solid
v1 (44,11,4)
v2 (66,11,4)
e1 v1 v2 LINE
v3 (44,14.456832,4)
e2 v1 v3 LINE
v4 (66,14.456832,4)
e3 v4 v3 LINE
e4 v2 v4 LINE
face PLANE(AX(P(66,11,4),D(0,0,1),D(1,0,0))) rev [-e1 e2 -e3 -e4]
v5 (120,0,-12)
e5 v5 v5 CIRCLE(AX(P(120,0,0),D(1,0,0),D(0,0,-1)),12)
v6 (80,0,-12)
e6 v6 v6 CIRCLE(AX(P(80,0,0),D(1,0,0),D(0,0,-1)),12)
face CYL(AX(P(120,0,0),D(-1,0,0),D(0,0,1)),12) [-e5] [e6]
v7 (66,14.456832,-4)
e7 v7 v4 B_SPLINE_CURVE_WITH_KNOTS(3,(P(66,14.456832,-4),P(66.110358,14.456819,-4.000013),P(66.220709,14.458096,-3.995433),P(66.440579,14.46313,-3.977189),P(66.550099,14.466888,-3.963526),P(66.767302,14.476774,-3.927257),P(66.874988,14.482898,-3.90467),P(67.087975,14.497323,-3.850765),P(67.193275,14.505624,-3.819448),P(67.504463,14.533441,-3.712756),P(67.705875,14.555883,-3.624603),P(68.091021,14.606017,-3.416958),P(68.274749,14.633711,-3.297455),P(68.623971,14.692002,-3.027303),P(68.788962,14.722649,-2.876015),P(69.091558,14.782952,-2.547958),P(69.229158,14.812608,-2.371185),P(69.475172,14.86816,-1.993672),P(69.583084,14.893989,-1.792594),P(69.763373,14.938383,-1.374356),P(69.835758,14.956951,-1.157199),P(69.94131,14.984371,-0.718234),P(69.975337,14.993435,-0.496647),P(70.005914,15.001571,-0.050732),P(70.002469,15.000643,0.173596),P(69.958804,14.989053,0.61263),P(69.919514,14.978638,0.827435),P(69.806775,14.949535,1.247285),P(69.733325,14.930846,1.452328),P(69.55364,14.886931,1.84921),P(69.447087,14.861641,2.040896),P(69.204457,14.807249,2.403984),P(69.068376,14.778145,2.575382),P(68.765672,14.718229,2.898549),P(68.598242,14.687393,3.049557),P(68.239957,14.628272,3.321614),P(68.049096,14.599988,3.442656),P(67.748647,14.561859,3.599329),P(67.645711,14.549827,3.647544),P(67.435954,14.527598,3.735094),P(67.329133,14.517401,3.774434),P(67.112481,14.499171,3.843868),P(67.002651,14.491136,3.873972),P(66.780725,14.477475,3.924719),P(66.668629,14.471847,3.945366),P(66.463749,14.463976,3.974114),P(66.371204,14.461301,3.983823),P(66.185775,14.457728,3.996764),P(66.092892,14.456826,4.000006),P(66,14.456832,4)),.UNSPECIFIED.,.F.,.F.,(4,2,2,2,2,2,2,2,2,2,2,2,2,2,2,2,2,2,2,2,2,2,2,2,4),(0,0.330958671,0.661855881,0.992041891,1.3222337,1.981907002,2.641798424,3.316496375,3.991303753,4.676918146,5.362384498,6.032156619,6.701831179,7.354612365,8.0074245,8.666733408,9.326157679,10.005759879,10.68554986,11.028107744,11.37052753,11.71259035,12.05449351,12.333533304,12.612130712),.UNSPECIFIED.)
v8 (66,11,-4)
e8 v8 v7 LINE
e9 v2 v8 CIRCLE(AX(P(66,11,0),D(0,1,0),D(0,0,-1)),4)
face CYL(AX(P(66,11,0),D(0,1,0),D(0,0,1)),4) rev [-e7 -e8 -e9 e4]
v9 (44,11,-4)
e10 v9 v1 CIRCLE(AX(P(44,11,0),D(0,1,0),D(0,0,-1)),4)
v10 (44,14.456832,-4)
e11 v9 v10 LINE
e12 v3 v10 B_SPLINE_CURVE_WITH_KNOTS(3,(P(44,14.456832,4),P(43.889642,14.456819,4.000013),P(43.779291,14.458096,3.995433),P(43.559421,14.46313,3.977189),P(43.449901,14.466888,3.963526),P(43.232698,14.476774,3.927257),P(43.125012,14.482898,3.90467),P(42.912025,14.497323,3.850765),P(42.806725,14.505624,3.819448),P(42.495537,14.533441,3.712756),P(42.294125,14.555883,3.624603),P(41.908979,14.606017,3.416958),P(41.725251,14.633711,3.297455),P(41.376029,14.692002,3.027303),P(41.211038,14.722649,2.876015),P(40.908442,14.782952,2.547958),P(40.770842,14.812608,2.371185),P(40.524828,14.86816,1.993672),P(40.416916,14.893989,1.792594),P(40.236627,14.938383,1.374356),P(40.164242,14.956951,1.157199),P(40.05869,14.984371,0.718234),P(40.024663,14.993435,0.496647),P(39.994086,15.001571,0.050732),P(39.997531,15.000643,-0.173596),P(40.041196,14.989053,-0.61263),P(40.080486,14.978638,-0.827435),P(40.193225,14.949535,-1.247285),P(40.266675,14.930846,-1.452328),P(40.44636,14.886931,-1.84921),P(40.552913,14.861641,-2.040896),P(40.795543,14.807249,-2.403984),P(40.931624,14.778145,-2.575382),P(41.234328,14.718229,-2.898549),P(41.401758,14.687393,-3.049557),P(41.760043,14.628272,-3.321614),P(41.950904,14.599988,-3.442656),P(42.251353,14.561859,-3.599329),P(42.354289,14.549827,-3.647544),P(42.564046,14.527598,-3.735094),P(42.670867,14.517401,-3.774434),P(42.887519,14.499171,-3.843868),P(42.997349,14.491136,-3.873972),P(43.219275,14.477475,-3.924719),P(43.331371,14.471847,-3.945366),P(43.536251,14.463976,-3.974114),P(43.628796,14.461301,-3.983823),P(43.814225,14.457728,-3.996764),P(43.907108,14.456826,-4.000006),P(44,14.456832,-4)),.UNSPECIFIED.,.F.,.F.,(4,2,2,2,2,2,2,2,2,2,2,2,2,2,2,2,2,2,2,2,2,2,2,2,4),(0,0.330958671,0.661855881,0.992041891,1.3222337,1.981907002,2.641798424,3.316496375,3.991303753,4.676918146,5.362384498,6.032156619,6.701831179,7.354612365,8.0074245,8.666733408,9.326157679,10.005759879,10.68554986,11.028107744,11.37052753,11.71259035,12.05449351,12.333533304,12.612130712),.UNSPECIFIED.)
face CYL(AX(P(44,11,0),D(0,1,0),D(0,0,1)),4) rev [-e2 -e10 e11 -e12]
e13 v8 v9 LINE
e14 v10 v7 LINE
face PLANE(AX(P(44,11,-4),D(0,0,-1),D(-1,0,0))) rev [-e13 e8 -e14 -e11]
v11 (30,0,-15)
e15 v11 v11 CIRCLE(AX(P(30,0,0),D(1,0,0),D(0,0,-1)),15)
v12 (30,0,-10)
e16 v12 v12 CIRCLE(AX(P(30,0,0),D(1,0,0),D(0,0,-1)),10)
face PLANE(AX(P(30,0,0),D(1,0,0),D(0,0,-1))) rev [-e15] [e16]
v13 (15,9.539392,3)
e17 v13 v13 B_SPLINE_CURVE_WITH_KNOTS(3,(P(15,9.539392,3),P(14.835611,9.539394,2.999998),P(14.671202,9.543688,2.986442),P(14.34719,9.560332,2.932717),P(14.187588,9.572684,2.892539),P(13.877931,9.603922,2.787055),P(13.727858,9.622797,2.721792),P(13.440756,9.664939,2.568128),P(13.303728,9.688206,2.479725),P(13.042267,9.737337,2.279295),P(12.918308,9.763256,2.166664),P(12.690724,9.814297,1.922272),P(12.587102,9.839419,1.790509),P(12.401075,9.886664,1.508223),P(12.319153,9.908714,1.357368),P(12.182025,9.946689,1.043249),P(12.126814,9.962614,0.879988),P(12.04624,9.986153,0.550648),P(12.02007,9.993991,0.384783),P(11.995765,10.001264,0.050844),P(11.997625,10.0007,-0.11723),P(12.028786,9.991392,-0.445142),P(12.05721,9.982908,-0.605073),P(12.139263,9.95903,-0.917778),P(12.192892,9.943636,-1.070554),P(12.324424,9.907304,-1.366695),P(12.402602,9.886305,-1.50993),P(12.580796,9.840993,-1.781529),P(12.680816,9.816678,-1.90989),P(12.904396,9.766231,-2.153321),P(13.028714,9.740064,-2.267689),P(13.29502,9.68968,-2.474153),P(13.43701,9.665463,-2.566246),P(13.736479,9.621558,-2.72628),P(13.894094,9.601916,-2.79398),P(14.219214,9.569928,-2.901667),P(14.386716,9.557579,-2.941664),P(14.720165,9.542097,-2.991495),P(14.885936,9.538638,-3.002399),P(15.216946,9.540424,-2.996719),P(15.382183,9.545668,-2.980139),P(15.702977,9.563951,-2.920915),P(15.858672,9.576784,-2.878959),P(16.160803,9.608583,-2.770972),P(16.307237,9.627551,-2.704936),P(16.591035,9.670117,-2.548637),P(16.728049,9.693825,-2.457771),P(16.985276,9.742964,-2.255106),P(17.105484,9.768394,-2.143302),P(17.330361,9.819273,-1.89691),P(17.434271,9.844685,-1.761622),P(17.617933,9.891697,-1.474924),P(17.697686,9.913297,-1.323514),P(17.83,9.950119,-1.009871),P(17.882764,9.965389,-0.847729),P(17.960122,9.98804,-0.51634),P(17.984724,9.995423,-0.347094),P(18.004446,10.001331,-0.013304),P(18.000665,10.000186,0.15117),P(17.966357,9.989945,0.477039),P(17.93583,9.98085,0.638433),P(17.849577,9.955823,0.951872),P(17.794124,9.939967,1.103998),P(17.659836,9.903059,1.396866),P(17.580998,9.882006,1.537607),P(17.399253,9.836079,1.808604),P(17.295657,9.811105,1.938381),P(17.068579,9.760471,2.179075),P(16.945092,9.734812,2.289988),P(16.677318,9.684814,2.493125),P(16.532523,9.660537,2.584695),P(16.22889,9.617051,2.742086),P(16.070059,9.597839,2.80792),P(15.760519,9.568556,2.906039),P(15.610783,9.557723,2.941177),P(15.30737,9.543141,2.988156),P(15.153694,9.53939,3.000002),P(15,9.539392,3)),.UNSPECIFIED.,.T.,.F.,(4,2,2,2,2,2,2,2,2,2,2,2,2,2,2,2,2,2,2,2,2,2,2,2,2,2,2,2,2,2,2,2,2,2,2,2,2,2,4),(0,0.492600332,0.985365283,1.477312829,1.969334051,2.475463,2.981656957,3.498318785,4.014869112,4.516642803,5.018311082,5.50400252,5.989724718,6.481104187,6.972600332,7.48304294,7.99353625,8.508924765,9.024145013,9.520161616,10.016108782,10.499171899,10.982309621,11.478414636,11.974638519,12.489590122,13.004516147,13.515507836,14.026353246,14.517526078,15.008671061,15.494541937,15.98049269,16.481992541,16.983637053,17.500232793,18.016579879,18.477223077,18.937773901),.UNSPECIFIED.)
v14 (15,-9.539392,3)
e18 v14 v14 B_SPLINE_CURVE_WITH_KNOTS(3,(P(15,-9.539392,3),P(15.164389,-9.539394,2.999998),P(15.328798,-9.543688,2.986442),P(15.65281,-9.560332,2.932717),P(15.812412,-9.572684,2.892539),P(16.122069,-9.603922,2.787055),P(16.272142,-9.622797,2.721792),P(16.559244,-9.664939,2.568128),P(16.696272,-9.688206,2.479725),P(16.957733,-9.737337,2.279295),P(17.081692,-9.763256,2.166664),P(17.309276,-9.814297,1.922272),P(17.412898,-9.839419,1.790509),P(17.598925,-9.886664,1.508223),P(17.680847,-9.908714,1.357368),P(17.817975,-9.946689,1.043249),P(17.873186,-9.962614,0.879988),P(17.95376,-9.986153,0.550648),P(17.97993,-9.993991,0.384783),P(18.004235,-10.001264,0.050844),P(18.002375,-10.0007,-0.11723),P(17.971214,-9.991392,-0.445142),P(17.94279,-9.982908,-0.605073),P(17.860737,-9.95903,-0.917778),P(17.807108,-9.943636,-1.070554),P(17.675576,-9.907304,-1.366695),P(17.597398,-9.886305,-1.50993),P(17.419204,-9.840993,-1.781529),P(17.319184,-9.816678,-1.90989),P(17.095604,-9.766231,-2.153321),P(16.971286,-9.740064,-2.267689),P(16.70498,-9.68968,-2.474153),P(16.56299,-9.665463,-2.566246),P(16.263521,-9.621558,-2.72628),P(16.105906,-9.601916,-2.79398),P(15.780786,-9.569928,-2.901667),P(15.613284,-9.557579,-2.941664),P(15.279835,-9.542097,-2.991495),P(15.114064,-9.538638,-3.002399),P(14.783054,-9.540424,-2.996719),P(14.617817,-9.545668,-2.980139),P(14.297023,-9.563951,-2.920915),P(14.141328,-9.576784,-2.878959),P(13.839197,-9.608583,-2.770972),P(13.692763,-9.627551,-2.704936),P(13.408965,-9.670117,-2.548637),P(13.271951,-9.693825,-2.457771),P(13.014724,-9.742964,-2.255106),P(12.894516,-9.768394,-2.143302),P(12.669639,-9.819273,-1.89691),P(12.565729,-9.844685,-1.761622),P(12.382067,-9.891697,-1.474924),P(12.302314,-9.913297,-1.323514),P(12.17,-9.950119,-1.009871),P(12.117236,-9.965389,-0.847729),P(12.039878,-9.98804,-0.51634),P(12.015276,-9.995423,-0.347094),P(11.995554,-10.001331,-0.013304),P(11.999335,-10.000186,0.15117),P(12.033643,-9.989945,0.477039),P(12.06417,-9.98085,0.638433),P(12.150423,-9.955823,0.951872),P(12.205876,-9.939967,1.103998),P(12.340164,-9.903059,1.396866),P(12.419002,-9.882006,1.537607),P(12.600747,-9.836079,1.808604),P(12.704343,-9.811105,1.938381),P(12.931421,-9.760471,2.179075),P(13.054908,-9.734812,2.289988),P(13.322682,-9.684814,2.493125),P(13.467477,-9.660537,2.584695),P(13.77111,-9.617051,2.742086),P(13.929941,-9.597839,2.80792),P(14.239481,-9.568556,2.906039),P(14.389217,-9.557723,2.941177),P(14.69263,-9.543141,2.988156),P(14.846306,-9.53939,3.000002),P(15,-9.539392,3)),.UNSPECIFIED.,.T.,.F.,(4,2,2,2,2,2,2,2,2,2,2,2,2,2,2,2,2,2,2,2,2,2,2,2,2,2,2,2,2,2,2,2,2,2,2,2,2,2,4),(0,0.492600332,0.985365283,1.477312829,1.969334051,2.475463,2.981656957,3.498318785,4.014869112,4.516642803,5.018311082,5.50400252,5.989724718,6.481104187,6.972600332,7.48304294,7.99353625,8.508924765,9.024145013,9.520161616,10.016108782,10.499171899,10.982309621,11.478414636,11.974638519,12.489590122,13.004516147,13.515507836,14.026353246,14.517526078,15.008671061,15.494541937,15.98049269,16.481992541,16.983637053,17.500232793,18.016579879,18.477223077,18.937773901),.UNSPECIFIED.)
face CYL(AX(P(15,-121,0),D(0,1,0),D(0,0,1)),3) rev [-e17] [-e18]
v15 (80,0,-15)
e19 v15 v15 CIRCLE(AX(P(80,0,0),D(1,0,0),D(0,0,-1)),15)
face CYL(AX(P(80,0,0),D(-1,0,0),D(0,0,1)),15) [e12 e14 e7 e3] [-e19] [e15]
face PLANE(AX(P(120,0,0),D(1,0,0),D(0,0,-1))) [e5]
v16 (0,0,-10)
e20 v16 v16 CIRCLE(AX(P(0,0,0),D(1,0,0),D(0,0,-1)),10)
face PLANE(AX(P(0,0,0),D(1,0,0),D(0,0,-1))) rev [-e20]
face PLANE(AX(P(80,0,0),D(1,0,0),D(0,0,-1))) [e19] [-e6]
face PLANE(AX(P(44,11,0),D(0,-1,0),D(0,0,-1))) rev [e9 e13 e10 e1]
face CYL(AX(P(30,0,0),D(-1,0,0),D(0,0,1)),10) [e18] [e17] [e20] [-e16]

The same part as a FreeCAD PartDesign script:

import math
import FreeCAD as App
import Part
import Sketcher
from FreeCAD import Vector
Q = App.Units.Quantity

doc = App.newDocument("Part")
body = doc.addObject("PartDesign::Body", "Body")

# Sketch on YZ plane
sketch1 = body.newObject("Sketcher::SketchObject", "Sketch")
sketch1.AttachmentSupport = (doc.getObject("YZ_Plane"), [""])
sketch1.MapMode = "FlatFace"
sketch1.addGeometry(Part.Circle(Vector(0, 0, 0), Vector(0, 0, 1), 10), False)
sketch1.addConstraint(Sketcher.Constraint("Coincident", 0, 3, -1, 1))
sketch1.addConstraint(Sketcher.Constraint("Diameter", 0, Q("20 mm")))
pad1 = body.newObject("PartDesign::Pad", "Pad")
pad1.Profile = sketch1
pad1.Length = 30

# Sketch on YZ plane
sketch2 = body.newObject("Sketcher::SketchObject", "Sketch001")
sketch2.AttachmentSupport = (doc.getObject("YZ_Plane"), [""])
sketch2.MapMode = "FlatFace"
sketch2.AttachmentOffset = App.Placement(Vector(0, 0, 30), App.Rotation())
sketch2.addGeometry(Part.Circle(Vector(0, 0, 0), Vector(0, 0, 1), 15), False)
sketch2.addConstraint(Sketcher.Constraint("Coincident", 0, 3, -1, 1))
sketch2.addConstraint(Sketcher.Constraint("Diameter", 0, Q("30 mm")))
pad2 = body.newObject("PartDesign::Pad", "Pad001")
pad2.Profile = sketch2
pad2.Length = 50

# Sketch on YZ plane
sketch3 = body.newObject("Sketcher::SketchObject", "Sketch002")
sketch3.AttachmentSupport = (doc.getObject("YZ_Plane"), [""])
sketch3.MapMode = "FlatFace"
sketch3.AttachmentOffset = App.Placement(Vector(0, 0, 80), App.Rotation())
sketch3.addGeometry(Part.Circle(Vector(0, 0, 0), Vector(0, 0, 1), 12), False)
sketch3.addConstraint(Sketcher.Constraint("Coincident", 0, 3, -1, 1))
sketch3.addConstraint(Sketcher.Constraint("Diameter", 0, Q("24 mm")))
pad3 = body.newObject("PartDesign::Pad", "Pad002")
pad3.Profile = sketch3
pad3.Length = 40

# Sketch on XZ plane
sketch4 = body.newObject("Sketcher::SketchObject", "Sketch003")
sketch4.AttachmentSupport = (doc.getObject("XZ_Plane"), [""])
sketch4.MapMode = "FlatFace"
sketch4.AttachmentOffset = App.Placement(Vector(0, 0, -15), App.Rotation())
sketch4.addGeometry(Part.LineSegment(Vector(66, -4, 0), Vector(44, -4, 0)), False)
sketch4.addGeometry(Part.ArcOfCircle(Part.Circle(Vector(44, 0, 0), Vector(0, 0, 1), 4), math.radians(90), math.radians(270)), False)
sketch4.addGeometry(Part.LineSegment(Vector(44, 4, 0), Vector(66, 4, 0)), False)
sketch4.addGeometry(Part.ArcOfCircle(Part.Circle(Vector(66, 0, 0), Vector(0, 0, 1), 4), math.radians(-90), math.radians(90)), False)
sketch4.addConstraint(Sketcher.Constraint("Tangent", 0, 2, 1, 2))
sketch4.addConstraint(Sketcher.Constraint("Tangent", 1, 1, 2, 1))
sketch4.addConstraint(Sketcher.Constraint("Tangent", 2, 2, 3, 2))
sketch4.addConstraint(Sketcher.Constraint("Tangent", 3, 1, 0, 1))
sketch4.addConstraint(Sketcher.Constraint("Horizontal", 0))
sketch4.addConstraint(Sketcher.Constraint("Horizontal", 2))
sketch4.addConstraint(Sketcher.Constraint("PointOnObject", 1, 3, -1))
sketch4.addConstraint(Sketcher.Constraint("Radius", 1, Q("4 mm")))
sketch4.addConstraint(Sketcher.Constraint("DistanceX", 0, 2, 0, 1, Q("22 mm")))
sketch4.addConstraint(Sketcher.Constraint("DistanceX", -1, 1, 1, 3, Q("44 mm")))
pocket1 = body.newObject("PartDesign::Pocket", "Pocket")
pocket1.Profile = sketch4
pocket1.Length = 4
pocket1.Reversed = True

# Sketch on XZ plane
sketch5 = body.newObject("Sketcher::SketchObject", "Sketch004")
sketch5.AttachmentSupport = (doc.getObject("XZ_Plane"), [""])
sketch5.MapMode = "FlatFace"
sketch5.addGeometry(Part.Circle(Vector(15, 0, 0), Vector(0, 0, 1), 3), False)
sketch5.addConstraint(Sketcher.Constraint("PointOnObject", 0, 3, -1))
sketch5.addConstraint(Sketcher.Constraint("Diameter", 0, Q("6 mm")))
sketch5.addConstraint(Sketcher.Constraint("DistanceX", -1, 1, 0, 3, Q("15 mm")))
pocket2 = body.newObject("PartDesign::Pocket", "Pocket001")
pocket2.Profile = sketch5
pocket2.Length = 242
pocket2.Midplane = True

doc.recompute()
